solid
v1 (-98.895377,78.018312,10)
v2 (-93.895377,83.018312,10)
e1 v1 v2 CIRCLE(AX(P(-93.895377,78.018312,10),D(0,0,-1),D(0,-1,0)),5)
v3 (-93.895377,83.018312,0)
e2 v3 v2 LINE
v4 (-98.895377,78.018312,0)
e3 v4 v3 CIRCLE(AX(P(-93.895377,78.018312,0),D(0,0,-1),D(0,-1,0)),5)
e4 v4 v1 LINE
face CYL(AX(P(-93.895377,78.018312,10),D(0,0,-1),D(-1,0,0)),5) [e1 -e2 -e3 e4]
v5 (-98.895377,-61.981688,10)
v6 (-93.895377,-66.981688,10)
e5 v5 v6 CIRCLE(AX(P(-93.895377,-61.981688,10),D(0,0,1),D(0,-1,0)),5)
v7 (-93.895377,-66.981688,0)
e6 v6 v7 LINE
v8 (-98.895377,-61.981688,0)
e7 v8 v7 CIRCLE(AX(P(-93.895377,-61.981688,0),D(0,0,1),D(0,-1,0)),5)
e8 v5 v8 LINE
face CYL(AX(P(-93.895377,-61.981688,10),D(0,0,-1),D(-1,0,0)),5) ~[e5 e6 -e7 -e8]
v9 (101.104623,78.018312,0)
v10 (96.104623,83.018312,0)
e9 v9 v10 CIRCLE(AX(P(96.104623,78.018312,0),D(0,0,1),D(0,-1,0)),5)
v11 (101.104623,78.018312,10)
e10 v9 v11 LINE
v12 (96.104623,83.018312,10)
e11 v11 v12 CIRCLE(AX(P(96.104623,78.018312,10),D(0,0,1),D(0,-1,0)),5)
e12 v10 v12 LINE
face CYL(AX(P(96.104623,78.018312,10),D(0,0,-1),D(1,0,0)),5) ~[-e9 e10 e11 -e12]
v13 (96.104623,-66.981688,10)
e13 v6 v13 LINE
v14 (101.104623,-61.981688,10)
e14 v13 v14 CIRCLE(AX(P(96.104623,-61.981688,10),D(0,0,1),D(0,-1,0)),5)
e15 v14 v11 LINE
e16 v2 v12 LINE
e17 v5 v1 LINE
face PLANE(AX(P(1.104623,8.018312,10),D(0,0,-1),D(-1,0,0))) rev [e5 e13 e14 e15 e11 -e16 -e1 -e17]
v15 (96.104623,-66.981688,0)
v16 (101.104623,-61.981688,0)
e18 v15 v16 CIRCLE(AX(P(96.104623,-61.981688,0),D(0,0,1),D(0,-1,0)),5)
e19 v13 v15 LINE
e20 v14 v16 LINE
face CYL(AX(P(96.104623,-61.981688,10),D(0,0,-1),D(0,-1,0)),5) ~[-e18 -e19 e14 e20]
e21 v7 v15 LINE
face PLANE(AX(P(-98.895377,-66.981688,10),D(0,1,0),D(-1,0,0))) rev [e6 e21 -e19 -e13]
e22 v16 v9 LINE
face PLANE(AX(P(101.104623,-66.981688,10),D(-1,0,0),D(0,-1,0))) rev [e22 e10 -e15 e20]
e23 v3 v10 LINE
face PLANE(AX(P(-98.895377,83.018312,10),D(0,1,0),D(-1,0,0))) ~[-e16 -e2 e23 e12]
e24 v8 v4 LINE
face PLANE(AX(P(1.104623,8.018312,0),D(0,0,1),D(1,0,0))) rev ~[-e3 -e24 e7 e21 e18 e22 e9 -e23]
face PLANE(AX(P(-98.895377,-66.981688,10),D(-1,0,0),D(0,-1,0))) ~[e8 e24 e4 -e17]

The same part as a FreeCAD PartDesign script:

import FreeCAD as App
import Part
import Sketcher
Q = App.Units.Quantity


def edges_at(feature, points):
    """Names of the edges that pass closest to the given points."""
    edges = feature.Shape.Edges
    near = lambda p: min(range(len(edges)), key=lambda i: edges[i].distToShape(Part.Vertex(*p))[0])
    return sorted({f"Edge{near(p) + 1}" for p in points})

doc = App.newDocument("Part")
params = doc.addObject("Spreadsheet::Sheet", "Params")
for row, (alias, value) in enumerate([
    ("sketch1_width", "200 mm"),
    ("sketch1_height", "150 mm"),
    ("pad1_length", "5 mm"),
    ("fillet_radius", "5 mm"),
    ("fillet2_radius", "5 mm"),
    ("fillet3_radius", "5 mm"),
    ("fillet4_radius", "5 mm"),
], start=1):
    params.set(f"A{row}", alias)
    params.set(f"B{row}", "=" + value)
    params.setAlias(f"B{row}", alias)

body = doc.addObject("PartDesign::Body", "Body")

sketch1 = body.newObject("Sketcher::SketchObject", "Sketch")
sketch1.AttachmentSupport = (doc.getObject("XY_Plane"), [""])
sketch1.MapMode = "FlatFace"
sketch1.addGeometry(Part.LineSegment(App.Vector(-99, 83, 0), App.Vector(-99, -67, 0)), False)
sketch1.addGeometry(Part.LineSegment(App.Vector(-99, -67, 0), App.Vector(101, -67, 0)), False)
sketch1.addGeometry(Part.LineSegment(App.Vector(101, -67, 0), App.Vector(101, 83, 0)), False)
sketch1.addGeometry(Part.LineSegment(App.Vector(101, 83, 0), App.Vector(-99, 83, 0)), False)
sketch1.addConstraint(Sketcher.Constraint("Coincident", 0, 2, 1, 1))
sketch1.addConstraint(Sketcher.Constraint("Coincident", 1, 2, 2, 1))
sketch1.addConstraint(Sketcher.Constraint("Coincident", 2, 2, 3, 1))
sketch1.addConstraint(Sketcher.Constraint("Coincident", 3, 2, 0, 1))
sketch1.addConstraint(Sketcher.Constraint("Vertical", 0))
sketch1.addConstraint(Sketcher.Constraint("Horizontal", 1))
sketch1.addConstraint(Sketcher.Constraint("Vertical", 2))
sketch1.addConstraint(Sketcher.Constraint("Horizontal", 3))
sketch1.addConstraint(Sketcher.Constraint("DistanceX", 1, 1, 1, 2, Q("200 mm")))
sketch1.addConstraint(Sketcher.Constraint("DistanceY", 0, 2, 0, 1, Q("150 mm")))
sketch1.addConstraint(Sketcher.Constraint("DistanceY", 0, 2, -1, 1, Q("66.981688 mm")))
sketch1.addConstraint(Sketcher.Constraint("DistanceX", 0, 2, -1, 1, Q("98.895377 mm")))
sketch1.setExpression("Constraints[8]", "Params.sketch1_width")
sketch1.setExpression("Constraints[9]", "Params.sketch1_height")
pad1 = body.newObject("PartDesign::Pad", "Pad")
pad1.Profile = sketch1
pad1.setExpression("Length", "Params.pad1_length")
doc.recompute()

fillet = body.newObject("PartDesign::Fillet", "Fillet")
fillet.Base = (pad1, edges_at(pad1, [(-98.895, -66.982, 2.5)]))
fillet.setExpression("Radius", "Params.fillet_radius")
doc.recompute()

fillet2 = body.newObject("PartDesign::Fillet", "Fillet001")
fillet2.Base = (fillet, edges_at(fillet, [(-98.895, 83.018, 2.5)]))
fillet2.setExpression("Radius", "Params.fillet2_radius")
doc.recompute()

fillet3 = body.newObject("PartDesign::Fillet", "Fillet002")
fillet3.Base = (fillet2, edges_at(fillet2, [(101.105, -66.982, 2.5)]))
fillet3.setExpression("Radius", "Params.fillet3_radius")
doc.recompute()

fillet4 = body.newObject("PartDesign::Fillet", "Fillet003")
fillet4.Base = (fillet3, edges_at(fillet3, [(101.105, 83.018, 2.5)]))
fillet4.setExpression("Radius", "Params.fillet4_radius")
body2 = doc.addObject("PartDesign::Body", "Body001")
doc.recompute()

body2.BaseFeature = body
doc.recompute()

mirroring = doc.addObject("Part::Mirroring", "Mirroring")
mirroring.Source = body
mirroring.Base = App.Vector(1.104623, 8.018312, 5)
mirroring.Normal = App.Vector(0, 0, 1)
body3 = doc.addObject("PartDesign::Body", "Body002")
body3.BaseFeature = mirroring
boolean = body2.newObject("PartDesign::Boolean", "Boolean")
boolean.Type = "Fuse"
boolean.addObjects([body3])
doc.recompute()
mirroring.Visibility = False

doc.recompute()
